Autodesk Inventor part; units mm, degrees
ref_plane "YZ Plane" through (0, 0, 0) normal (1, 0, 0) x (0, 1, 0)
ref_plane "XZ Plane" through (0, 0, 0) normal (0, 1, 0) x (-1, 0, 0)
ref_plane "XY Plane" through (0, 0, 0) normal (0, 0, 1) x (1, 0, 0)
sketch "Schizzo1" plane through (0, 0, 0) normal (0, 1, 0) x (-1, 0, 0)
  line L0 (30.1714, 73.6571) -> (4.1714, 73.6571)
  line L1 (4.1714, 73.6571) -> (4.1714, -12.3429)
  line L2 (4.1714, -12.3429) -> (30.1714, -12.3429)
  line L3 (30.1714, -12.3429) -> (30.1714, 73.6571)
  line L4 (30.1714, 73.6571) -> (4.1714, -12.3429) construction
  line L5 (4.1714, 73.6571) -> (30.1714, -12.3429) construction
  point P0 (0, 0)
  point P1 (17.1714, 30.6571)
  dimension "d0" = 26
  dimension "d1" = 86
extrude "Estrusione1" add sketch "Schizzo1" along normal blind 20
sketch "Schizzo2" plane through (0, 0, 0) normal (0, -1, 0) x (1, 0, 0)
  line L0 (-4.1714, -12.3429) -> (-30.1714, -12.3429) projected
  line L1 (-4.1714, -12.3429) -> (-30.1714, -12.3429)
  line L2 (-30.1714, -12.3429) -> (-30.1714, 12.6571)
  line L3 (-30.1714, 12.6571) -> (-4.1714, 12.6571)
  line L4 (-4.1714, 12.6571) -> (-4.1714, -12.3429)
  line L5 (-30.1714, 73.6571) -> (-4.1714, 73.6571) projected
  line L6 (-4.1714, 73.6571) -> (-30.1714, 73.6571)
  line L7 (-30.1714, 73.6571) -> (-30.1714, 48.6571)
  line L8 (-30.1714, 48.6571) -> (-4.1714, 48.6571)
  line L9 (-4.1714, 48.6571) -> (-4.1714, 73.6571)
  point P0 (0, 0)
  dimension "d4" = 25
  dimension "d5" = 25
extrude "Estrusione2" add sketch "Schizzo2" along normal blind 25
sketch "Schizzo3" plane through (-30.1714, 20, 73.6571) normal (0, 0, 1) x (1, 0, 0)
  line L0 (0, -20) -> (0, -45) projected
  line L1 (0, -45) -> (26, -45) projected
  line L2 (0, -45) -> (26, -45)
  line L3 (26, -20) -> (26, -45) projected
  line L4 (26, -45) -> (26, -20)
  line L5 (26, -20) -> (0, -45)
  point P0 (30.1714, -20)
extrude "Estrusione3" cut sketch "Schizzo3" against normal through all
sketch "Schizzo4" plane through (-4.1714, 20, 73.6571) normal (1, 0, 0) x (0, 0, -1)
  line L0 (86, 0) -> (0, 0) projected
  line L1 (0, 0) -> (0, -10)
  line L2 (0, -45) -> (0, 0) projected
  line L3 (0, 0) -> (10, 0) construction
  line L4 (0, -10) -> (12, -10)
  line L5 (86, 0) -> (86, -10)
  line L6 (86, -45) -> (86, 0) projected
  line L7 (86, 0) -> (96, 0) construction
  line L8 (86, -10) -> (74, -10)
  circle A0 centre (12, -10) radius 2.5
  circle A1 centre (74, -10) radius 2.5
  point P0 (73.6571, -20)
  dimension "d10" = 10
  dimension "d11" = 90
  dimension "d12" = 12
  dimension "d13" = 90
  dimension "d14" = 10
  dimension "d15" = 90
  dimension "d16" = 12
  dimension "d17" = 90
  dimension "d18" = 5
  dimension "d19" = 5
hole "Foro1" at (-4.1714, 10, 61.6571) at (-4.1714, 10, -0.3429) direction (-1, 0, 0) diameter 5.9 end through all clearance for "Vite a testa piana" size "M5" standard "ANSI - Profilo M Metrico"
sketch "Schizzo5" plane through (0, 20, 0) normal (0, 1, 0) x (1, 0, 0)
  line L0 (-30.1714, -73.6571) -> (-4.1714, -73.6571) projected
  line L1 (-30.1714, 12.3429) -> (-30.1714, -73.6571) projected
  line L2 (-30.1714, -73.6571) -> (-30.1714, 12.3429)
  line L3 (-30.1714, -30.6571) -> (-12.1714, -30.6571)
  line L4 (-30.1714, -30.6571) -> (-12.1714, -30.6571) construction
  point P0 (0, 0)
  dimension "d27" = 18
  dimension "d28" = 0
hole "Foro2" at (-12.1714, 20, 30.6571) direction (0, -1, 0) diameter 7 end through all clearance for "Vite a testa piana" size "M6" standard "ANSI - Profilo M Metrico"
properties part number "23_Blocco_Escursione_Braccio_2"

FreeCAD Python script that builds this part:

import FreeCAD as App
import Part
import Sketcher
Q = App.Units.Quantity

doc = App.newDocument("Part")
params = doc.addObject("Spreadsheet::Sheet", "Params")
for row, (alias, value) in enumerate([
    ("sketch1_width", "26 mm"),
    ("sketch1_height", "86 mm"),
    ("pad1_length", "20 mm"),
    ("sketch2_height", "25 mm"),
    ("sketch2_width", "26 mm"),
    ("pad2_length", "25 mm"),
    ("sketch3_width", "26 mm"),
    ("sketch3_height", "25 mm"),
    ("sketch4_diameter", "5.9 mm"),
    ("hole_diameter", "5.9 mm"),
    ("sketch5_diameter", "7 mm"),
    ("hole2_diameter", "7 mm"),
], start=1):
    params.set(f"A{row}", alias)
    params.set(f"B{row}", "=" + value)
    params.setAlias(f"B{row}", alias)

body = doc.addObject("PartDesign::Body", "Body")

# Sketch on XZ plane
sketch1 = body.newObject("Sketcher::SketchObject", "Sketch")
sketch1.AttachmentSupport = (doc.getObject("XZ_Plane"), [""])
sketch1.MapMode = "FlatFace"
sketch1.addGeometry([
    Part.LineSegment(App.Vector(-30, -12, 0), App.Vector(-30, 74, 0)),
    Part.LineSegment(App.Vector(-30, 74, 0), App.Vector(-4, 74, 0)),
    Part.LineSegment(App.Vector(-4, 74, 0), App.Vector(-4, -12, 0)),
    Part.LineSegment(App.Vector(-4, -12, 0), App.Vector(-30, -12, 0)),
], False)
sketch1.addConstraint([
    Sketcher.Constraint("Coincident", 0, 2, 1, 1),
    Sketcher.Constraint("Coincident", 1, 2, 2, 1),
    Sketcher.Constraint("Coincident", 2, 2, 3, 1),
    Sketcher.Constraint("Coincident", 3, 2, 0, 1),
    Sketcher.Constraint("Vertical", 0),
    Sketcher.Constraint("Horizontal", 1),
    Sketcher.Constraint("Vertical", 2),
    Sketcher.Constraint("Horizontal", 3),
    Sketcher.Constraint("DistanceX", 1, 1, 1, 2, Q("26 mm")),
    Sketcher.Constraint("DistanceY", 0, 1, 0, 2, Q("86 mm")),
    Sketcher.Constraint("DistanceY", -1, 1, 0, 2, Q("73.657 mm")),
    Sketcher.Constraint("DistanceX", 0, 2, -1, 1, Q("30.1714 mm")),
])
sketch1.setExpression("Constraints[8]", "Params.sketch1_width")
sketch1.setExpression("Constraints[9]", "Params.sketch1_height")
pad1 = body.newObject("PartDesign::Pad", "Pad")
pad1.Profile = sketch1
pad1.setExpression("Length", "Params.pad1_length")
pad1.Reversed = True

# Sketch on XZ plane
sketch2 = body.newObject("Sketcher::SketchObject", "Sketch001")
sketch2.AttachmentSupport = (doc.getObject("XZ_Plane"), [""])
sketch2.MapMode = "FlatFace"
sketch2.addGeometry([
    Part.LineSegment(App.Vector(-30, -12, 0), App.Vector(-4, -12, 0)),  # 0
    Part.LineSegment(App.Vector(-4, -12, 0), App.Vector(-4, 13, 0)),  # 1
    Part.LineSegment(App.Vector(-4, 13, 0), App.Vector(-30, 13, 0)),  # 2
    Part.LineSegment(App.Vector(-30, 13, 0), App.Vector(-30, -12, 0)),  # 3
    Part.LineSegment(App.Vector(-4, 74, 0), App.Vector(-30, 74, 0)),  # 4
    Part.LineSegment(App.Vector(-30, 74, 0), App.Vector(-30, 49, 0)),  # 5
    Part.LineSegment(App.Vector(-30, 49, 0), App.Vector(-4, 49, 0)),  # 6
    Part.LineSegment(App.Vector(-4, 49, 0), App.Vector(-4, 74, 0)),  # 7
], False)
sketch2.addConstraint([
    Sketcher.Constraint("Coincident", 0, 2, 1, 1),
    Sketcher.Constraint("Coincident", 1, 2, 2, 1),
    Sketcher.Constraint("Coincident", 2, 2, 3, 1),
    Sketcher.Constraint("Coincident", 3, 2, 0, 1),
    Sketcher.Constraint("Coincident", 4, 2, 5, 1),
    Sketcher.Constraint("Coincident", 5, 2, 6, 1),
    Sketcher.Constraint("Coincident", 6, 2, 7, 1),
    Sketcher.Constraint("Coincident", 7, 2, 4, 1),
    Sketcher.Constraint("Horizontal", 0),
    Sketcher.Constraint("Vertical", 1),
    Sketcher.Constraint("Horizontal", 2),
    Sketcher.Constraint("Vertical", 3),
    Sketcher.Constraint("Horizontal", 4),
    Sketcher.Constraint("Vertical", 5),
    Sketcher.Constraint("Horizontal", 6),
    Sketcher.Constraint("Vertical", 7),
    Sketcher.Constraint("Vertical", 3, 2, 4, 2),
    Sketcher.Constraint("Vertical", 1, 2, 6, 2),
    Sketcher.Constraint("Equal", 3, 5),
    Sketcher.Constraint("DistanceY", 1, 1, 1, 2, Q("25 mm")),
    Sketcher.Constraint("DistanceX", 0, 1, 0, 2, Q("26 mm")),
    Sketcher.Constraint("DistanceY", 2, 2, 4, 2, Q("61 mm")),
    Sketcher.Constraint("DistanceY", 0, 2, -1, 1, Q("12.343 mm")),
    Sketcher.Constraint("DistanceX", 0, 2, -1, 1, Q("4.1714 mm")),
])
sketch2.setExpression("Constraints[19]", "Params.sketch2_height")
sketch2.setExpression("Constraints[20]", "Params.sketch2_width")
pad2 = body.newObject("PartDesign::Pad", "Pad001")
pad2.Profile = sketch2
pad2.setExpression("Length", "Params.pad2_length")

# Sketch on XY plane
sketch3 = body.newObject("Sketcher::SketchObject", "Sketch002")
sketch3.AttachmentSupport = (doc.getObject("XY_Plane"), [""])
sketch3.MapMode = "FlatFace"
sketch3.AttachmentOffset = App.Placement(App.Vector(0, 0, 73.6571), App.Rotation())
sketch3.addGeometry([
    Part.LineSegment(App.Vector(-4, 0, 0), App.Vector(-30, -25, 0)),
    Part.LineSegment(App.Vector(-30, -25, 0), App.Vector(-4, -25, 0)),
    Part.LineSegment(App.Vector(-4, -25, 0), App.Vector(-4, 0, 0)),
], False)
sketch3.addConstraint([
    Sketcher.Constraint("Coincident", 0, 2, 1, 1),
    Sketcher.Constraint("Coincident", 1, 2, 2, 1),
    Sketcher.Constraint("Coincident", 2, 2, 0, 1),
    Sketcher.Constraint("Horizontal", 1),
    Sketcher.Constraint("Vertical", 2),
    Sketcher.Constraint("PointOnObject", 2, 2, -1),
    Sketcher.Constraint("DistanceX", 1, 1, 1, 2, Q("26 mm")),
    Sketcher.Constraint("DistanceY", 2, 1, 2, 2, Q("25 mm")),
    Sketcher.Constraint("DistanceX", 0, 2, -1, 1, Q("30.1714 mm")),
])
sketch3.setExpression("Constraints[6]", "Params.sketch3_width")
sketch3.setExpression("Constraints[7]", "Params.sketch3_height")
pocket1 = body.newObject("PartDesign::Pocket", "Pocket")
pocket1.Profile = sketch3
pocket1.Type = "ThroughAll"

# Sketch on YZ plane
sketch4 = body.newObject("Sketcher::SketchObject", "Sketch003")
sketch4.AttachmentSupport = (doc.getObject("YZ_Plane"), [""])
sketch4.MapMode = "FlatFace"
sketch4.AttachmentOffset = App.Placement(App.Vector(0, 0, -4.1714), App.Rotation())
sketch4.addGeometry([
    Part.Circle(App.Vector(10, 61.7, 0), App.Vector(0, 0, 1), 3),
    Part.Circle(App.Vector(10, -0.3, 0), App.Vector(0, 0, 1), 3),
], False)
sketch4.addConstraint([
    Sketcher.Constraint("Equal", 0, 1),
    Sketcher.Constraint("Vertical", 0, 3, 1, 3),
    Sketcher.Constraint("Diameter", 0, Q("5.9 mm")),
    Sketcher.Constraint("DistanceX", -1, 1, 0, 3, Q("10 mm")),
    Sketcher.Constraint("DistanceY", 1, 3, 0, 3, Q("62 mm")),
    Sketcher.Constraint("DistanceY", -1, 1, 0, 3, Q("61.657 mm")),
])
sketch4.setExpression("Constraints[2]", "Params.sketch4_diameter")
doc.recompute()
hole = body.newObject("PartDesign::Hole", "Hole")
hole.Profile = sketch4
hole.ThreadType = "None"
hole.setExpression("Diameter", "Params.hole_diameter")
hole.DepthType = "ThroughAll"

# Sketch on XZ plane
sketch5 = body.newObject("Sketcher::SketchObject", "Sketch004")
sketch5.AttachmentSupport = (doc.getObject("XZ_Plane"), [""])
sketch5.MapMode = "FlatFace"
sketch5.AttachmentOffset = App.Placement(App.Vector(0, 0, -20), App.Rotation())
sketch5.addGeometry(Part.Circle(App.Vector(-12.2, 30.7, 0), App.Vector(0, 0, 1), 3.5), False)
sketch5.addConstraint([
    Sketcher.Constraint("Diameter", 0, Q("7 mm")),
    Sketcher.Constraint("DistanceY", -1, 1, 0, 3, Q("30.657 mm")),
    Sketcher.Constraint("DistanceX", 0, 3, -1, 1, Q("12.1714 mm")),
])
sketch5.setExpression("Constraints[0]", "Params.sketch5_diameter")
doc.recompute()
hole2 = body.newObject("PartDesign::Hole", "Hole001")
hole2.Profile = sketch5
hole2.ThreadType = "None"
hole2.setExpression("Diameter", "Params.hole2_diameter")
hole2.DepthType = "ThroughAll"
hole2.Reversed = True

doc.recompute()
